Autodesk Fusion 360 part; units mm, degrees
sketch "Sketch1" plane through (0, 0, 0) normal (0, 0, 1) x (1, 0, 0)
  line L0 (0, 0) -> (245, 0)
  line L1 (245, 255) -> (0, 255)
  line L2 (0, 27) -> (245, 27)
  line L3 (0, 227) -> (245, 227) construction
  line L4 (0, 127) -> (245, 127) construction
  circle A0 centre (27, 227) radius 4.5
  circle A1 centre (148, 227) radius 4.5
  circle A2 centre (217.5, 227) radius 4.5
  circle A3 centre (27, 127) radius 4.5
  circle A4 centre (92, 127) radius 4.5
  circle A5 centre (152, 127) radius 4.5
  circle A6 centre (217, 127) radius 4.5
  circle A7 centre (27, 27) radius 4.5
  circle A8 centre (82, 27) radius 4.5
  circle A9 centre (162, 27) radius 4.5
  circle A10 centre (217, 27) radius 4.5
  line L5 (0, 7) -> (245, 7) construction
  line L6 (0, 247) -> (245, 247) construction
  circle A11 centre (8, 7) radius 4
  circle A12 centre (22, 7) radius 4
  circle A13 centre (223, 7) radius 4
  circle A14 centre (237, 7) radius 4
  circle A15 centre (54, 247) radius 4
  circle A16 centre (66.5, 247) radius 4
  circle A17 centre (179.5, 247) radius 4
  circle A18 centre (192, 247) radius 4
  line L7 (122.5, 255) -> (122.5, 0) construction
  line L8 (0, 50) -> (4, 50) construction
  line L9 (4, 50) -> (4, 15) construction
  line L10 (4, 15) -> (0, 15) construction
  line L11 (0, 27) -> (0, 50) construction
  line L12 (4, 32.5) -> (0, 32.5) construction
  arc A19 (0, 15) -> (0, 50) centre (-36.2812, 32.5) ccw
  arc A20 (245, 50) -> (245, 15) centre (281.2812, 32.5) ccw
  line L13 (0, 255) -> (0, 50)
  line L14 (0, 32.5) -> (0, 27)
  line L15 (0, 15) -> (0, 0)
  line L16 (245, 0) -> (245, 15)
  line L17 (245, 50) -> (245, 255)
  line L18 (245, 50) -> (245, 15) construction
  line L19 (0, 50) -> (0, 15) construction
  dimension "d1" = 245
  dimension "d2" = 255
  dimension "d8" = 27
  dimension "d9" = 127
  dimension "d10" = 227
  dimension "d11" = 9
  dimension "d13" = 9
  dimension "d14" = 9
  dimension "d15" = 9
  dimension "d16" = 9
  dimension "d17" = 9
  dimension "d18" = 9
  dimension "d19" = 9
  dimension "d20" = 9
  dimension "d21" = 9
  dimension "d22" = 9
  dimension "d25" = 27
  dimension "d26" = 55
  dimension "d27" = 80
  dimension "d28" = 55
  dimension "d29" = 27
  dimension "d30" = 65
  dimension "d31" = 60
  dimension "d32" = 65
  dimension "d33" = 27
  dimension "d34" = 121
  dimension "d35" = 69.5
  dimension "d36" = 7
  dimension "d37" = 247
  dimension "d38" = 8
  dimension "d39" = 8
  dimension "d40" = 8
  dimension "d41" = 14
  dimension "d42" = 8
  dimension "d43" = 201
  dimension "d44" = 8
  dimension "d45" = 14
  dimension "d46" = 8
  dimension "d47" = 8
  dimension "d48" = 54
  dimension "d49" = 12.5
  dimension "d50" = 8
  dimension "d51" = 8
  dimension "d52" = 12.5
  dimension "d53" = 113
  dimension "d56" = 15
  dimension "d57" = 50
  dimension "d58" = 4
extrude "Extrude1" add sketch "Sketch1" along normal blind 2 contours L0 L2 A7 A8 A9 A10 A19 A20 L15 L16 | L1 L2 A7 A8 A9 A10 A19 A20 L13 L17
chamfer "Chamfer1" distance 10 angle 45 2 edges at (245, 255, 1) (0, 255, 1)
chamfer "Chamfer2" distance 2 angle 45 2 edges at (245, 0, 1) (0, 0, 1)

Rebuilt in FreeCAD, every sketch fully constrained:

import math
import FreeCAD as App
import Part
import Sketcher
from FreeCAD import Vector


def edges_at(feature, points):
    """Names of the edges that pass closest to the given points."""
    edges = feature.Shape.Edges
    near = lambda p: min(range(len(edges)), key=lambda i: edges[i].distToShape(Part.Vertex(*p))[0])
    return sorted({f"Edge{near(p) + 1}" for p in points})

doc = App.newDocument("Part")
params = doc.addObject("Spreadsheet::Sheet", "Params")
for row, (alias, value) in enumerate([
    ("sketch1_diameter", "9 mm"),
    ("sketch1_diameter2", "8 mm"),
    ("sketch1_width", "245 mm"),
    ("sketch1_height", "15 mm"),
    ("pad1_length", "2 mm"),
    ("chamfer_size", "10 mm"),
    ("chamfer2_size", "2 mm"),
], start=1):
    params.set(f"A{row}", alias)
    params.set(f"B{row}", "=" + value)
    params.setAlias(f"B{row}", alias)

body = doc.addObject("PartDesign::Body", "Body")

# Sketch on XY plane
sketch1 = body.newObject("Sketcher::SketchObject", "Sketch")
sketch1.AttachmentSupport = (doc.getObject("XY_Plane"), [""])
sketch1.MapMode = "FlatFace"
sketch1.addGeometry([
    Part.LineSegment(Vector(0, 15, 0), Vector(0, 0, 0)),  # 0
    Part.LineSegment(Vector(0, 0, 0), Vector(245, 0, 0)),  # 1
    Part.LineSegment(Vector(245, 0, 0), Vector(245, 15, 0)),  # 2
    Part.ArcOfCircle(Part.Circle(Vector(281.3, 32.5, 0), Vector(0, 0, 1), 40.3), math.radians(154), math.radians(206)),  # 3
    Part.LineSegment(Vector(245, 50, 0), Vector(245, 255, 0)),  # 4
    Part.LineSegment(Vector(245, 255, 0), Vector(0, 255, 0)),  # 5
    Part.LineSegment(Vector(0, 255, 0), Vector(0, 50, 0)),  # 6
    Part.ArcOfCircle(Part.Circle(Vector(-36.3, 32.5, 0), Vector(0, 0, 1), 40.3), math.radians(-26), math.radians(26)),  # 7
    Part.Circle(Vector(27, 27, 0), Vector(0, 0, 1), 4.5),  # 8
    Part.Circle(Vector(82, 27, 0), Vector(0, 0, 1), 4.5),  # 9
    Part.Circle(Vector(162, 27, 0), Vector(0, 0, 1), 4.5),  # 10
    Part.Circle(Vector(217, 27, 0), Vector(0, 0, 1), 4.5),  # 11
    Part.Circle(Vector(8, 7, 0), Vector(0, 0, 1), 4),  # 12
    Part.Circle(Vector(22, 7, 0), Vector(0, 0, 1), 4),  # 13
    Part.Circle(Vector(223, 7, 0), Vector(0, 0, 1), 4),  # 14
    Part.Circle(Vector(237, 7, 0), Vector(0, 0, 1), 4),  # 15
    Part.Circle(Vector(66.5, 247, 0), Vector(0, 0, 1), 4),  # 16
    Part.Circle(Vector(148, 227, 0), Vector(0, 0, 1), 4.5),  # 17
    Part.Circle(Vector(179.5, 247, 0), Vector(0, 0, 1), 4),  # 18
    Part.Circle(Vector(192, 247, 0), Vector(0, 0, 1), 4),  # 19
    Part.Circle(Vector(217.5, 227, 0), Vector(0, 0, 1), 4.5),  # 20
    Part.Circle(Vector(27, 127, 0), Vector(0, 0, 1), 4.5),  # 21
    Part.Circle(Vector(92, 127, 0), Vector(0, 0, 1), 4.5),  # 22
    Part.Circle(Vector(152, 127, 0), Vector(0, 0, 1), 4.5),  # 23
    Part.Circle(Vector(217, 127, 0), Vector(0, 0, 1), 4.5),  # 24
    Part.Circle(Vector(27, 227, 0), Vector(0, 0, 1), 4.5),  # 25
    Part.Circle(Vector(54, 247, 0), Vector(0, 0, 1), 4),  # 26
], False)
sketch1.addConstraint([
    Sketcher.Constraint("Coincident", 0, 2, 1, 1),
    Sketcher.Constraint("Coincident", 1, 2, 2, 1),
    Sketcher.Constraint("Coincident", 2, 2, 3, 2),
    Sketcher.Constraint("Coincident", 3, 1, 4, 1),
    Sketcher.Constraint("Coincident", 4, 2, 5, 1),
    Sketcher.Constraint("Coincident", 5, 2, 6, 1),
    Sketcher.Constraint("Coincident", 6, 2, 7, 2),
    Sketcher.Constraint("Coincident", 7, 1, 0, 1),
    Sketcher.Constraint("Vertical", 0),
    Sketcher.Constraint("Horizontal", 1),
    Sketcher.Constraint("Vertical", 2),
    Sketcher.Constraint("Vertical", 4),
    Sketcher.Constraint("Horizontal", 5),
    Sketcher.Constraint("Vertical", 6),
    Sketcher.Constraint("Coincident", 0, 2, -1, 1),
    Sketcher.Constraint("Equal", 3, 7),
    Sketcher.Constraint("Equal", 8, 9),
    Sketcher.Constraint("Equal", 9, 10),
    Sketcher.Constraint("Equal", 10, 11),
    Sketcher.Constraint("Equal", 12, 13),
    Sketcher.Constraint("Equal", 13, 14),
    Sketcher.Constraint("Equal", 14, 15),
    Sketcher.Constraint("Equal", 15, 16),
    Sketcher.Constraint("Equal", 11, 17),
    Sketcher.Constraint("Equal", 16, 18),
    Sketcher.Constraint("Equal", 18, 19),
    Sketcher.Constraint("Equal", 17, 20),
    Sketcher.Constraint("Equal", 20, 21),
    Sketcher.Constraint("Equal", 21, 22),
    Sketcher.Constraint("Equal", 22, 23),
    Sketcher.Constraint("Equal", 23, 24),
    Sketcher.Constraint("Equal", 24, 25),
    Sketcher.Constraint("Equal", 19, 26),
    Sketcher.Constraint("PointOnObject", 5, 2, -2),
    Sketcher.Constraint("Horizontal", 3, 3, 7, 3),
    Sketcher.Constraint("Horizontal", 8, 3, 9, 3),
    Sketcher.Constraint("Horizontal", 9, 3, 10, 3),
    Sketcher.Constraint("Horizontal", 10, 3, 11, 3),
    Sketcher.Constraint("Horizontal", 12, 3, 13, 3),
    Sketcher.Constraint("Horizontal", 13, 3, 14, 3),
    Sketcher.Constraint("Horizontal", 14, 3, 15, 3),
    Sketcher.Constraint("Horizontal", 16, 3, 18, 3),
    Sketcher.Constraint("Horizontal", 18, 3, 19, 3),
    Sketcher.Constraint("Horizontal", 17, 3, 20, 3),
    Sketcher.Constraint("Horizontal", 21, 3, 22, 3),
    Sketcher.Constraint("Horizontal", 22, 3, 23, 3),
    Sketcher.Constraint("Horizontal", 23, 3, 24, 3),
    Sketcher.Constraint("Horizontal", 20, 3, 25, 3),
    Sketcher.Constraint("Horizontal", 19, 3, 26, 3),
    Sketcher.Constraint("Horizontal", 3, 1, 6, 2),
    Sketcher.Constraint("Horizontal", 2, 2, 7, 1),
    Sketcher.Constraint("Vertical", 8, 3, 21, 3),
    Sketcher.Constraint("Vertical", 11, 3, 24, 3),
    Sketcher.Constraint("Vertical", 21, 3, 25, 3),
    Sketcher.Constraint("Diameter", 8, 9.0),
    Sketcher.Constraint("Diameter", 12, 8.0),
    Sketcher.Constraint("DistanceX", 1, 1, 1, 2, 245.0),
    Sketcher.Constraint("DistanceY", 0, 2, 0, 1, 15.0),
    Sketcher.Constraint("DistanceX", -1, 1, 8, 3, 27.0),
    Sketcher.Constraint("DistanceY", -1, 1, 8, 3, 27.0),
    Sketcher.Constraint("DistanceX", -1, 1, 12, 3, 8.0),
    Sketcher.Constraint("DistanceY", -1, 1, 12, 3, 7.0),
    Sketcher.Constraint("DistanceY", -1, 1, 16, 3, 247.0),
    Sketcher.Constraint("DistanceY", -1, 1, 17, 3, 227.0),
    Sketcher.Constraint("DistanceY", -1, 1, 21, 3, 127.0),
    Sketcher.Constraint("DistanceX", -1, 1, 26, 3, 54.0),
    Sketcher.Constraint("DistanceY", -1, 1, 3, 1, 50.0),
    Sketcher.Constraint("DistanceY", -1, 1, 4, 2, 255.0),
    Sketcher.Constraint("DistanceX", 8, 3, 9, 3, 55.0),
    Sketcher.Constraint("DistanceX", 9, 3, 10, 3, 80.0),
    Sketcher.Constraint("DistanceX", 10, 3, 11, 3, 55.0),
    Sketcher.Constraint("DistanceX", 12, 3, 13, 3, 14.0),
    Sketcher.Constraint("DistanceX", 14, 3, 15, 3, 14.0),
    Sketcher.Constraint("DistanceX", 17, 3, 10, 3, 14.0),
    Sketcher.Constraint("DistanceX", 16, 3, 18, 3, 113.0),
    Sketcher.Constraint("DistanceX", 21, 3, 22, 3, 65.0),
    Sketcher.Constraint("DistanceX", 22, 3, 23, 3, 60.0),
    Sketcher.Constraint("DistanceX", 15, 3, 1, 2, 8.0),
    Sketcher.Constraint("DistanceX", 18, 3, 19, 3, 12.5),
    Sketcher.Constraint("DistanceX", 17, 3, 20, 3, 69.5),
    Sketcher.Constraint("DistanceX", 26, 3, 16, 3, 12.5),
    Sketcher.Constraint("Radius", 3, 40.2812),
])
sketch1.setExpression("Constraints[54]", "Params.sketch1_diameter")
sketch1.setExpression("Constraints[55]", "Params.sketch1_diameter2")
sketch1.setExpression("Constraints[56]", "Params.sketch1_width")
sketch1.setExpression("Constraints[57]", "Params.sketch1_height")
pad1 = body.newObject("PartDesign::Pad", "Pad")
pad1.Profile = sketch1
pad1.setExpression("Length", "Params.pad1_length")
doc.recompute()

chamfer = body.newObject("PartDesign::Chamfer", "Chamfer")
chamfer.Base = (pad1, edges_at(pad1, [(245, 255, 1), (0, 255, 1)]))
chamfer.setExpression("Size", "Params.chamfer_size")
doc.recompute()

chamfer2 = body.newObject("PartDesign::Chamfer", "Chamfer001")
chamfer2.Base = (chamfer, edges_at(chamfer, [(245, 0, 1), (0, 0, 1)]))
chamfer2.setExpression("Size", "Params.chamfer2_size")

doc.recompute()
